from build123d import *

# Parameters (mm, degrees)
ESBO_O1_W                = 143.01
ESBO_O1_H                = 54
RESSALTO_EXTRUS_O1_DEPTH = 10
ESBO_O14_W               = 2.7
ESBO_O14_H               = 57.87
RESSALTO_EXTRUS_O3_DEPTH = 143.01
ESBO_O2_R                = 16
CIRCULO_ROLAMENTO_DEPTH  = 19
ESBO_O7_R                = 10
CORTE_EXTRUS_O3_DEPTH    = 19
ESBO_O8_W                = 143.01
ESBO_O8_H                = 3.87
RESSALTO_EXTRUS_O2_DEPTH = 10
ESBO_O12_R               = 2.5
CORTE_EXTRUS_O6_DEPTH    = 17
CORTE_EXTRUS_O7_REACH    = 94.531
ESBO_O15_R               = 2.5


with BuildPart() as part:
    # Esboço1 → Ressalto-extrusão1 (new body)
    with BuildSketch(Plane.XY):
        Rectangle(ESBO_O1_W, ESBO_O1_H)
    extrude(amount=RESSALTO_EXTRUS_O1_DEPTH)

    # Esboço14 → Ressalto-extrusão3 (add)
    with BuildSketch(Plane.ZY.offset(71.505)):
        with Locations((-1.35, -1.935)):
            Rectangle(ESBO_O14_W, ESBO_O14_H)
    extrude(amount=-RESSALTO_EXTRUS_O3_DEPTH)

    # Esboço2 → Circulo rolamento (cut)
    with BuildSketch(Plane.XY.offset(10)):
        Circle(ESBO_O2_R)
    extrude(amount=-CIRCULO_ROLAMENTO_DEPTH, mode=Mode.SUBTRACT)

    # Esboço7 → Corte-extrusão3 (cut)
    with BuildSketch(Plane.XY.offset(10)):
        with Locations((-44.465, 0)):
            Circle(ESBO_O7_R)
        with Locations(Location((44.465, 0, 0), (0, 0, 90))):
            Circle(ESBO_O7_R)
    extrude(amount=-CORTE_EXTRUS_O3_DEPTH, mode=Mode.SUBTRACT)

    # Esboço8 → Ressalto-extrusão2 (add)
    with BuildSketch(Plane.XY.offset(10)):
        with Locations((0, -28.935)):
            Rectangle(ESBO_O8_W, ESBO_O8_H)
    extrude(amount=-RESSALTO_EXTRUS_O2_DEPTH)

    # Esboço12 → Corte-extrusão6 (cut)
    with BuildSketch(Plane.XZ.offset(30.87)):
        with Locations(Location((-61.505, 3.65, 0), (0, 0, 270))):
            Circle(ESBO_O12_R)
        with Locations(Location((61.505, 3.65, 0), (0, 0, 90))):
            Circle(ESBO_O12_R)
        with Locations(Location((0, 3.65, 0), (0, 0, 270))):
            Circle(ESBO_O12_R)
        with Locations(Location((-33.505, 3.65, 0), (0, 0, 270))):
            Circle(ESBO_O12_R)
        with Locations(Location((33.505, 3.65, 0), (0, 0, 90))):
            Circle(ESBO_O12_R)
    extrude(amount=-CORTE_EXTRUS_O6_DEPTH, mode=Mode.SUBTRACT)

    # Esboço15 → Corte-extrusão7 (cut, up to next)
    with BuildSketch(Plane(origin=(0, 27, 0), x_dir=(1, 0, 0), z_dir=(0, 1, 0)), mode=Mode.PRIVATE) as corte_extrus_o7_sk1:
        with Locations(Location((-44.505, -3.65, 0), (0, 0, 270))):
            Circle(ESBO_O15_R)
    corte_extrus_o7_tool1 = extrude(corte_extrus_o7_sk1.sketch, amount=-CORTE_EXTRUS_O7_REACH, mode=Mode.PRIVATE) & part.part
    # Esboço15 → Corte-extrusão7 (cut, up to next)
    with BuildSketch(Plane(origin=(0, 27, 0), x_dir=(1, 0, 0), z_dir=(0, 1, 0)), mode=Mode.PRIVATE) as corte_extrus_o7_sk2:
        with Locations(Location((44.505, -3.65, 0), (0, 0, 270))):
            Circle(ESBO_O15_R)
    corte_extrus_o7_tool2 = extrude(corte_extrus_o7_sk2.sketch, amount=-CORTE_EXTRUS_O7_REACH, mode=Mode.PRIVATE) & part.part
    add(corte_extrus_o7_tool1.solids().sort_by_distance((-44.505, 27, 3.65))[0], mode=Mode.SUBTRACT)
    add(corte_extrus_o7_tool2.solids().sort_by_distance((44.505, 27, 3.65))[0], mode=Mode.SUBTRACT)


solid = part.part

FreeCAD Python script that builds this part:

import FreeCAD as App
import Part
import Sketcher
from FreeCAD import Vector


def add_polygon(sketch, points):
    """Adds a closed chain of lines whose ends are joined by coincident constraints."""
    first, n = sketch.GeometryCount, len(points)
    for a, b in zip(points, points[1:] + points[:1]):
        sketch.addGeometry(Part.LineSegment(App.Vector(*a, 0), App.Vector(*b, 0)), False)
    for i in range(n):
        sketch.addConstraint(Sketcher.Constraint("Coincident", first + i, 2, first + (i + 1) % n, 1))

doc = App.newDocument("Part")
params = doc.addObject("Spreadsheet::Sheet", "Params")
for row, (alias, value) in enumerate([
    ("sketch1_height", "54 mm"),
    ("sketch1_width", "143.01 mm"),
    ("pad1_length", "10 mm"),
    ("sketch2_height", "2.7 mm"),
    ("sketch2_width", "57.87 mm"),
    ("pad2_length", "143.01 mm"),
    ("sketch3_diameter", "32 mm"),
    ("pocket1_length", "19 mm"),
    ("sketch4_diameter", "20 mm"),
    ("pocket2_length", "19 mm"),
    ("sketch5_width", "143.01 mm"),
    ("sketch5_height", "3.87 mm"),
    ("pad3_length", "10 mm"),
    ("sketch6_diameter", "5 mm"),
    ("pocket3_length", "17 mm"),
    ("sketch7_diameter", "5 mm"),
    ("sketch8_diameter", "5 mm"),
], start=1):
    params.set(f"A{row}", alias)
    params.set(f"B{row}", "=" + value)
    params.setAlias(f"B{row}", alias)

body = doc.addObject("PartDesign::Body", "Body")

# Sketch on XY plane
sketch1 = body.newObject("Sketcher::SketchObject", "Sketch")
sketch1.AttachmentSupport = (doc.getObject("XY_Plane"), [""])
sketch1.MapMode = "FlatFace"
add_polygon(sketch1, [(-71.505, 27), (-71.505, -27), (71.505, -27), (71.505, 27)])  # lines 0-3
sketch1.addConstraint([
    Sketcher.Constraint("Vertical", 0),
    Sketcher.Constraint("Horizontal", 1),
    Sketcher.Constraint("Vertical", 2),
    Sketcher.Constraint("Horizontal", 3),
    Sketcher.Constraint("Symmetric", 0, 2, 2, 2, -1, 1),
    Sketcher.Constraint("DistanceY", 0, 2, 0, 1, 54.0),
    Sketcher.Constraint("DistanceX", 1, 1, 1, 2, 143.01),
])
sketch1.setExpression("Constraints[9]", "Params.sketch1_height")
sketch1.setExpression("Constraints[10]", "Params.sketch1_width")
pad1 = body.newObject("PartDesign::Pad", "Pad")
pad1.Profile = sketch1
pad1.setExpression("Length", "Params.pad1_length")

# Sketch on YZ plane
sketch2 = body.newObject("Sketcher::SketchObject", "Sketch001")
sketch2.AttachmentSupport = (doc.getObject("YZ_Plane"), [""])
sketch2.MapMode = "FlatFace"
sketch2.AttachmentOffset = App.Placement(Vector(0, 0, -71.505), App.Rotation())
add_polygon(sketch2, [(27, -2.7), (-30.87, -2.7), (-30.87, 0), (27, 0)])  # lines 0-3
sketch2.addConstraint([
    Sketcher.Constraint("Horizontal", 0),
    Sketcher.Constraint("Vertical", 1),
    Sketcher.Constraint("Horizontal", 2),
    Sketcher.Constraint("Vertical", 3),
    Sketcher.Constraint("PointOnObject", 1, 2, -1),
    Sketcher.Constraint("DistanceY", 1, 1, 1, 2, 2.7),
    Sketcher.Constraint("DistanceX", -1, 1, 2, 2, 27.0),
    Sketcher.Constraint("DistanceX", 0, 2, 0, 1, 57.87),
])
sketch2.setExpression("Constraints[9]", "Params.sketch2_height")
sketch2.setExpression("Constraints[11]", "Params.sketch2_width")
pad2 = body.newObject("PartDesign::Pad", "Pad001")
pad2.Profile = sketch2
pad2.setExpression("Length", "Params.pad2_length")

# Sketch on XY plane
sketch3 = body.newObject("Sketcher::SketchObject", "Sketch002")
sketch3.AttachmentSupport = (doc.getObject("XY_Plane"), [""])
sketch3.MapMode = "FlatFace"
sketch3.AttachmentOffset = App.Placement(Vector(0, 0, 10), App.Rotation())
sketch3.addGeometry(Part.Circle(Vector(0, 0, 0), Vector(0, 0, 1), 16), False)
sketch3.addConstraint([
    Sketcher.Constraint("Coincident", 0, 3, -1, 1),
    Sketcher.Constraint("Diameter", 0, 32.0),
])
sketch3.setExpression("Constraints[1]", "Params.sketch3_diameter")
pocket1 = body.newObject("PartDesign::Pocket", "Pocket")
pocket1.Profile = sketch3
pocket1.setExpression("Length", "Params.pocket1_length")

# Sketch on XY plane
sketch4 = body.newObject("Sketcher::SketchObject", "Sketch003")
sketch4.AttachmentSupport = (doc.getObject("XY_Plane"), [""])
sketch4.MapMode = "FlatFace"
sketch4.AttachmentOffset = App.Placement(Vector(0, 0, 10), App.Rotation())
sketch4.addGeometry([
    Part.Circle(Vector(-44.465, 0, 0), Vector(0, 0, 1), 10),
    Part.Circle(Vector(44.465, 0, 0), Vector(0, 0, 1), 10),
], False)
sketch4.addConstraint([
    Sketcher.Constraint("Equal", 0, 1),
    Sketcher.Constraint("Symmetric", 0, 3, 1, 3, -1, 1),
    Sketcher.Constraint("PointOnObject", 0, 3, -1),
    Sketcher.Constraint("Diameter", 0, 20.0),
    Sketcher.Constraint("DistanceX", 0, 3, 1, 3, 88.93),
])
sketch4.setExpression("Constraints[3]", "Params.sketch4_diameter")
pocket2 = body.newObject("PartDesign::Pocket", "Pocket001")
pocket2.Profile = sketch4
pocket2.setExpression("Length", "Params.pocket2_length")

# Sketch on XY plane
sketch5 = body.newObject("Sketcher::SketchObject", "Sketch004")
sketch5.AttachmentSupport = (doc.getObject("XY_Plane"), [""])
sketch5.MapMode = "FlatFace"
sketch5.AttachmentOffset = App.Placement(Vector(0, 0, 10), App.Rotation())
add_polygon(sketch5, [(-71.505, -27), (-71.505, -30.87), (71.505, -30.87), (71.505, -27)])  # lines 0-3
sketch5.addConstraint([
    Sketcher.Constraint("Vertical", 0),
    Sketcher.Constraint("Horizontal", 1),
    Sketcher.Constraint("Vertical", 2),
    Sketcher.Constraint("Horizontal", 3),
    Sketcher.Constraint("DistanceY", 2, 2, -1, 1, 27.0),
    Sketcher.Constraint("DistanceX", 1, 1, 1, 2, 143.01),
    Sketcher.Constraint("DistanceY", 0, 2, 0, 1, 3.87),
    Sketcher.Constraint("DistanceX", 0, 2, -1, 1, 71.505),
])
sketch5.setExpression("Constraints[9]", "Params.sketch5_width")
sketch5.setExpression("Constraints[10]", "Params.sketch5_height")
pad3 = body.newObject("PartDesign::Pad", "Pad002")
pad3.Profile = sketch5
pad3.setExpression("Length", "Params.pad3_length")
pad3.Reversed = True

# Sketch on XZ plane
sketch6 = body.newObject("Sketcher::SketchObject", "Sketch005")
sketch6.AttachmentSupport = (doc.getObject("XZ_Plane"), [""])
sketch6.MapMode = "FlatFace"
sketch6.AttachmentOffset = App.Placement(Vector(0, 0, 30.87), App.Rotation())
sketch6.addGeometry([
    Part.Circle(Vector(-61.505, 3.65, 0), Vector(0, 0, 1), 2.5),  # 0
    Part.Circle(Vector(61.505, 3.65, 0), Vector(0, 0, 1), 2.5),  # 1
    Part.Circle(Vector(0, 3.65, 0), Vector(0, 0, 1), 2.5),  # 2
    Part.Circle(Vector(-33.505, 3.65, 0), Vector(0, 0, 1), 2.5),  # 3
    Part.Circle(Vector(33.505, 3.65, 0), Vector(0, 0, 1), 2.5),  # 4
], False)
sketch6.addConstraint([
    Sketcher.Constraint("Equal", 0, 1),
    Sketcher.Constraint("Equal", 1, 2),
    Sketcher.Constraint("Equal", 2, 3),
    Sketcher.Constraint("Equal", 3, 4),
    Sketcher.Constraint("Symmetric", 0, 3, 1, 3, -2),
    Sketcher.Constraint("Symmetric", 3, 3, 4, 3, -2),
    Sketcher.Constraint("PointOnObject", 2, 3, -2),
    Sketcher.Constraint("Horizontal", 1, 3, 2, 3),
    Sketcher.Constraint("Horizontal", 2, 3, 3, 3),
    Sketcher.Constraint("Diameter", 0, 5.0),
    Sketcher.Constraint("DistanceX", 0, 3, 3, 3, 28.0),
    Sketcher.Constraint("DistanceY", -1, 1, 0, 3, 3.65),
    Sketcher.Constraint("DistanceX", 0, 3, 1, 3, 123.01),
])
sketch6.setExpression("Constraints[9]", "Params.sketch6_diameter")
pocket3 = body.newObject("PartDesign::Pocket", "Pocket002")
pocket3.Profile = sketch6
pocket3.setExpression("Length", "Params.pocket3_length")

# Sketch on XZ plane
sketch7 = body.newObject("Sketcher::SketchObject", "Sketch006")
sketch7.AttachmentSupport = (doc.getObject("XZ_Plane"), [""])
sketch7.MapMode = "FlatFace"
sketch7.AttachmentOffset = App.Placement(Vector(0, 0, -27), App.Rotation())
sketch7.addGeometry(Part.Circle(Vector(-44.505, 3.65, 0), Vector(0, 0, 1), 2.5), False)
sketch7.addConstraint([
    Sketcher.Constraint("Diameter", 0, 5.0),
    Sketcher.Constraint("DistanceY", -1, 1, 0, 3, 3.65),
    Sketcher.Constraint("DistanceX", 0, 3, -1, 1, 44.505),
])
sketch7.setExpression("Constraints[0]", "Params.sketch7_diameter")
pocket4 = body.newObject("PartDesign::Pocket", "Pocket003")
pocket4.Profile = sketch7
pocket4.Type = "UpToFirst"
pocket4.Reversed = True

# Sketch on XZ plane
sketch8 = body.newObject("Sketcher::SketchObject", "Sketch007")
sketch8.AttachmentSupport = (doc.getObject("XZ_Plane"), [""])
sketch8.MapMode = "FlatFace"
sketch8.AttachmentOffset = App.Placement(Vector(0, 0, -27), App.Rotation())
sketch8.addGeometry(Part.Circle(Vector(44.505, 3.65, 0), Vector(0, 0, 1), 2.5), False)
sketch8.addConstraint([
    Sketcher.Constraint("Diameter", 0, 5.0),
    Sketcher.Constraint("DistanceY", -1, 1, 0, 3, 3.65),
    Sketcher.Constraint("DistanceX", -1, 1, 0, 3, 44.505),
])
sketch8.setExpression("Constraints[0]", "Params.sketch8_diameter")
pocket5 = body.newObject("PartDesign::Pocket", "Pocket004")
pocket5.Profile = sketch8
pocket5.Type = "UpToFirst"
pocket5.Reversed = True

doc.recompute()
